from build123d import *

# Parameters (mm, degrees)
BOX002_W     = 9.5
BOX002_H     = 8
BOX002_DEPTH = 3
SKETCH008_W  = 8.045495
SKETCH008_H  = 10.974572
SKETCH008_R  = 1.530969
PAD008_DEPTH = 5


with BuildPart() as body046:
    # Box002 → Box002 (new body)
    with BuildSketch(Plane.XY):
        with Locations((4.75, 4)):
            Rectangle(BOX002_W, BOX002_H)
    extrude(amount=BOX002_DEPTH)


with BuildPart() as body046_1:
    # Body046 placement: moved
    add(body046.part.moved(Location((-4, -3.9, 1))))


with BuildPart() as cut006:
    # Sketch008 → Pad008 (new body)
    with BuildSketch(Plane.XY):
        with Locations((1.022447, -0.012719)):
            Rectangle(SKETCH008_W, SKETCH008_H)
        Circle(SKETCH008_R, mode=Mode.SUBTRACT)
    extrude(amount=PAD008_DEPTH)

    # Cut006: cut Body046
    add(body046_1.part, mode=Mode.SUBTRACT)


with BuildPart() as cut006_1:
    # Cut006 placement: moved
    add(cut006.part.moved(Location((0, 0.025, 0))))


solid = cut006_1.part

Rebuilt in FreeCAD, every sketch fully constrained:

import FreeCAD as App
import Part
import Sketcher


def add_polygon(sketch, points):
    """Adds a closed chain of lines whose ends are joined by coincident constraints."""
    first, n = sketch.GeometryCount, len(points)
    for a, b in zip(points, points[1:] + points[:1]):
        sketch.addGeometry(Part.LineSegment(App.Vector(*a, 0), App.Vector(*b, 0)), False)
    for i in range(n):
        sketch.addConstraint(Sketcher.Constraint("Coincident", first + i, 2, first + (i + 1) % n, 1))

doc = App.newDocument("Part")
body = doc.addObject("PartDesign::Body", "Body")

# Sketch on XY plane
sketch1 = doc.addObject("Sketcher::SketchObject", "Sketch")
body.addObject(sketch1)
sketch1.AttachmentSupport = (doc.XY_Plane, [""])
sketch1.MapMode = "FlatFace"
add_polygon(sketch1, [(0, 8), (0, 0), (9.5, 0), (9.5, 8)])  # lines 0-3
sketch1.addConstraint(Sketcher.Constraint("Vertical", 0))
sketch1.addConstraint(Sketcher.Constraint("Horizontal", 1))
sketch1.addConstraint(Sketcher.Constraint("Vertical", 2))
sketch1.addConstraint(Sketcher.Constraint("Horizontal", 3))
sketch1.addConstraint(Sketcher.Constraint("Coincident", 0, 2, -1, 1))
sketch1.addConstraint(Sketcher.Constraint("DistanceY", 0, 2, 0, 1, 8.0))
sketch1.addConstraint(Sketcher.Constraint("DistanceX", 1, 1, 1, 2, 9.5))
pad1 = doc.addObject("PartDesign::Pad", "Pad")
body.addObject(pad1)
pad1.Profile = sketch1
pad1.Length = 3
body2 = doc.addObject("PartDesign::Body", "Body001")
doc.recompute()

body.Placement = App.Placement(App.Vector(-4, -3.9, 1), App.Rotation(App.Vector(0, 0, 1), 0))
boolean = doc.addObject("PartDesign::Boolean", "Boolean")
body2.addObject(boolean)
boolean.Type = "Fuse"
boolean.addObjects([body])
body3 = doc.addObject("PartDesign::Body", "Body002")

# Sketch on XY plane
sketch2 = doc.addObject("Sketcher::SketchObject", "Sketch001")
body3.addObject(sketch2)
sketch2.AttachmentSupport = (doc.getObject("XY_Plane002"), [""])
sketch2.MapMode = "FlatFace"
add_polygon(sketch2, [(-3.0003, 5.474567), (-3.0003, -5.500005), (5.045195, -5.500005), (5.045195, 5.474567)])  # lines 0-3
sketch2.addGeometry(Part.Circle(App.Vector(0, 0, 0), App.Vector(0, 0, 1), 1.530969), False)  # 4
sketch2.addConstraint(Sketcher.Constraint("Vertical", 0))
sketch2.addConstraint(Sketcher.Constraint("Horizontal", 1))
sketch2.addConstraint(Sketcher.Constraint("Vertical", 2))
sketch2.addConstraint(Sketcher.Constraint("Horizontal", 3))
sketch2.addConstraint(Sketcher.Constraint("Coincident", 4, 3, -1, 1))
sketch2.addConstraint(Sketcher.Constraint("Diameter", 4, 3.061938))
sketch2.addConstraint(Sketcher.Constraint("DistanceX", 0, 2, -1, 1, 3.0003))
sketch2.addConstraint(Sketcher.Constraint("DistanceX", 1, 1, 1, 2, 8.045495))
sketch2.addConstraint(Sketcher.Constraint("DistanceY", 0, 2, 0, 1, 10.974572))
sketch2.addConstraint(Sketcher.Constraint("DistanceY", 0, 2, -1, 1, 5.500005))
pad2 = doc.addObject("PartDesign::Pad", "Pad001")
body3.addObject(pad2)
pad2.Profile = sketch2
pad2.Length = 5
doc.recompute()

boolean2 = doc.addObject("PartDesign::Boolean", "Boolean001")
body3.addObject(boolean2)
boolean2.Type = "Cut"
boolean2.addObjects([body2])
body4 = doc.addObject("PartDesign::Body", "Body003")
doc.recompute()

body3.Placement = App.Placement(App.Vector(0, 0.025, 0), App.Rotation(App.Vector(0, 0, 1), 0))
boolean3 = doc.addObject("PartDesign::Boolean", "Boolean002")
body4.addObject(boolean3)
boolean3.Type = "Fuse"
boolean3.addObjects([body3])

doc.recompute()
